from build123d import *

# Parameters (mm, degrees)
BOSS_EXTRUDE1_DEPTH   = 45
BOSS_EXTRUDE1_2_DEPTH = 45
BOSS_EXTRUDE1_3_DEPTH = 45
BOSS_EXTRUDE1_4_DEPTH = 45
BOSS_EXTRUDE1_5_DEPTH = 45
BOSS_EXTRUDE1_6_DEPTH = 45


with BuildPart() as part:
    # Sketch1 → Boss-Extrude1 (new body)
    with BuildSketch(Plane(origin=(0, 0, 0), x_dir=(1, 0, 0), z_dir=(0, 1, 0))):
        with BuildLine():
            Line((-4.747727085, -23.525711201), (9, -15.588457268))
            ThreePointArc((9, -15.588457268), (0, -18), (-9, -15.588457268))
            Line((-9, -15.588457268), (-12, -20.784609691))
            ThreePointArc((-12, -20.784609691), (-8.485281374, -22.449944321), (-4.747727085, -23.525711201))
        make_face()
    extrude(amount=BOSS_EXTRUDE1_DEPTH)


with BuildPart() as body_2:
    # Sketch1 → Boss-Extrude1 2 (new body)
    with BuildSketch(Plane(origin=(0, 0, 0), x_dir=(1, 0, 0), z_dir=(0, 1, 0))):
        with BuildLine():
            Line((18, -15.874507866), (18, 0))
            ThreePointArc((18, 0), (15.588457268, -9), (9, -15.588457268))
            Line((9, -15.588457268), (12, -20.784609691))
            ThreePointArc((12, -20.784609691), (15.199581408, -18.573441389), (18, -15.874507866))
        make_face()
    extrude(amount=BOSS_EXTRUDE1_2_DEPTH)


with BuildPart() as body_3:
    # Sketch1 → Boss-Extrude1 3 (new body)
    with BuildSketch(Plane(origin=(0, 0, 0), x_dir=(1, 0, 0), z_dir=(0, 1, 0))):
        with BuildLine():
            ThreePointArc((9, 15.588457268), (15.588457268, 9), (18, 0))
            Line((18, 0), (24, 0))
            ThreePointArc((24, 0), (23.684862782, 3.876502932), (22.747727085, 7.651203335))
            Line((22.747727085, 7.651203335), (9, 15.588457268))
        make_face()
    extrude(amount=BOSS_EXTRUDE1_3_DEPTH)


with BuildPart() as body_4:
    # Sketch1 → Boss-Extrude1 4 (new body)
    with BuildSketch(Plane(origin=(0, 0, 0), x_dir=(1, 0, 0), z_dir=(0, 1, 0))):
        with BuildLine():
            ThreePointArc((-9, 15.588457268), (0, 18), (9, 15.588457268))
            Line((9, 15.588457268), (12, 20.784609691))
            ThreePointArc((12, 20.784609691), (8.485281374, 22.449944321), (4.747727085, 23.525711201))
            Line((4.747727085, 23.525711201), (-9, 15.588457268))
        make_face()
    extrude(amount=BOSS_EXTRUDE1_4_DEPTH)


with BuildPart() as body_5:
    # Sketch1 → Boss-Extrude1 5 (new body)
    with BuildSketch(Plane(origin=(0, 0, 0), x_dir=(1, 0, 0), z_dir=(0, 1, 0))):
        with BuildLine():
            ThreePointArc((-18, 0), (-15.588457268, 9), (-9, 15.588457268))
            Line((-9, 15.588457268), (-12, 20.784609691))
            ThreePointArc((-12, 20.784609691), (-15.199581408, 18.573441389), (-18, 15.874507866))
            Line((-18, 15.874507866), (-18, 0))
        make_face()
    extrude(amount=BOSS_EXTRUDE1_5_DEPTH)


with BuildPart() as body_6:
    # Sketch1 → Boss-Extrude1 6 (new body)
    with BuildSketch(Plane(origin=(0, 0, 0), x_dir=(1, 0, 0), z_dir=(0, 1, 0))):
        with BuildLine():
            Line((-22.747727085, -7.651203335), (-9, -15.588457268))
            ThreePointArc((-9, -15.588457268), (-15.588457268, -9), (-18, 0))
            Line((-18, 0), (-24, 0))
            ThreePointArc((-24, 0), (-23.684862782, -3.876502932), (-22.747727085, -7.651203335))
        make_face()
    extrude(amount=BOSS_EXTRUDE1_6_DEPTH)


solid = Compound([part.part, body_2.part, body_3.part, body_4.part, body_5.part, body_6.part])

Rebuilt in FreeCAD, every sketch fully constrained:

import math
import FreeCAD as App
import Part
import Sketcher
Q = App.Units.Quantity

doc = App.newDocument("Part")
params = doc.addObject("Spreadsheet::Sheet", "Params")
for row, (alias, value) in enumerate([
    ("sketch1_radius", "18 mm"),
    ("sketch1_radius2", "24 mm"),
    ("pad1_length", "45 mm"),
    ("sketch2_radius", "18 mm"),
    ("sketch2_radius2", "24 mm"),
    ("pad2_length", "45 mm"),
    ("sketch3_radius", "18 mm"),
    ("sketch3_radius2", "24 mm"),
    ("pad3_length", "45 mm"),
    ("sketch4_radius", "18 mm"),
    ("sketch4_radius2", "24 mm"),
    ("pad4_length", "45 mm"),
    ("sketch5_radius", "18 mm"),
    ("sketch5_radius2", "24 mm"),
    ("pad5_length", "45 mm"),
    ("sketch6_radius", "18 mm"),
    ("sketch6_radius2", "24 mm"),
    ("pad6_length", "45 mm"),
], start=1):
    params.set(f"A{row}", alias)
    params.set(f"B{row}", "=" + value)
    params.setAlias(f"B{row}", alias)

body = doc.addObject("PartDesign::Body", "Body")

# Sketch on XZ plane
sketch1 = doc.addObject("Sketcher::SketchObject", "Sketch")
body.addObject(sketch1)
sketch1.AttachmentSupport = (doc.XZ_Plane, [""])
sketch1.MapMode = "FlatFace"
sketch1.addGeometry(Part.LineSegment(App.Vector(-5, 24, 0), App.Vector(9, 16, 0)), False)
sketch1.addGeometry(Part.ArcOfCircle(Part.Circle(App.Vector(0, 0, 0), App.Vector(0, 0, 1), 18), math.radians(60), math.radians(120)), False)
sketch1.addGeometry(Part.LineSegment(App.Vector(-9, 16, 0), App.Vector(-12, 21, 0)), False)
sketch1.addGeometry(Part.ArcOfCircle(Part.Circle(App.Vector(0, 0, 0), App.Vector(0, 0, 1), 24), math.radians(101.41), math.radians(120)), False)
sketch1.addConstraint(Sketcher.Constraint("Tangent", 0, 2, 1, 1))
sketch1.addConstraint(Sketcher.Constraint("Coincident", 1, 2, 2, 1))
sketch1.addConstraint(Sketcher.Constraint("Coincident", 2, 2, 3, 2))
sketch1.addConstraint(Sketcher.Constraint("Coincident", 3, 1, 0, 1))
sketch1.addConstraint(Sketcher.Constraint("Coincident", 1, 3, -1, 1))
sketch1.addConstraint(Sketcher.Constraint("Coincident", 3, 3, -1, 1))
sketch1.addConstraint(Sketcher.Constraint("Horizontal", 0, 2, 1, 2))
sketch1.addConstraint(Sketcher.Constraint("Radius", 1, Q("18 mm")))
sketch1.addConstraint(Sketcher.Constraint("Radius", 3, Q("24 mm")))
sketch1.addConstraint(Sketcher.Constraint("Angle", 0, Q("-30 deg")))
sketch1.addConstraint(Sketcher.Constraint("Angle", 2, Q("120 deg")))
sketch1.setExpression("Constraints[7]", "Params.sketch1_radius")
sketch1.setExpression("Constraints[8]", "Params.sketch1_radius2")
pad1 = doc.addObject("PartDesign::Pad", "Pad")
body.addObject(pad1)
pad1.Profile = sketch1
pad1.setExpression("Length", "Params.pad1_length")
pad1.Reversed = True
body2 = doc.addObject("PartDesign::Body", "Body001")

# Sketch on XZ plane
sketch2 = doc.addObject("Sketcher::SketchObject", "Sketch001")
body2.addObject(sketch2)
sketch2.AttachmentSupport = (doc.getObject("XZ_Plane001"), [""])
sketch2.MapMode = "FlatFace"
sketch2.addGeometry(Part.LineSegment(App.Vector(18, 16, 0), App.Vector(18, 0, 0)), False)
sketch2.addGeometry(Part.ArcOfCircle(Part.Circle(App.Vector(0, 0, 0), App.Vector(0, 0, 1), 18), math.radians(0), math.radians(60)), False)
sketch2.addGeometry(Part.LineSegment(App.Vector(9, 16, 0), App.Vector(12, 21, 0)), False)
sketch2.addGeometry(Part.ArcOfCircle(Part.Circle(App.Vector(0, 0, 0), App.Vector(0, 0, 1), 24), math.radians(41.41), math.radians(60)), False)
sketch2.addConstraint(Sketcher.Constraint("Tangent", 0, 2, 1, 1))
sketch2.addConstraint(Sketcher.Constraint("Coincident", 1, 2, 2, 1))
sketch2.addConstraint(Sketcher.Constraint("Coincident", 2, 2, 3, 2))
sketch2.addConstraint(Sketcher.Constraint("Coincident", 3, 1, 0, 1))
sketch2.addConstraint(Sketcher.Constraint("Vertical", 0))
sketch2.addConstraint(Sketcher.Constraint("Coincident", 1, 3, -1, 1))
sketch2.addConstraint(Sketcher.Constraint("Coincident", 3, 3, -1, 1))
sketch2.addConstraint(Sketcher.Constraint("Radius", 1, Q("18 mm")))
sketch2.addConstraint(Sketcher.Constraint("Radius", 3, Q("24 mm")))
sketch2.addConstraint(Sketcher.Constraint("Angle", 2, Q("60 deg")))
sketch2.addConstraint(Sketcher.Constraint("DistanceX", -1, 1, 1, 2, Q("9 mm")))
sketch2.setExpression("Constraints[7]", "Params.sketch2_radius")
sketch2.setExpression("Constraints[8]", "Params.sketch2_radius2")
pad2 = doc.addObject("PartDesign::Pad", "Pad001")
body2.addObject(pad2)
pad2.Profile = sketch2
pad2.setExpression("Length", "Params.pad2_length")
pad2.Reversed = True
body3 = doc.addObject("PartDesign::Body", "Body002")

# Sketch on XZ plane
sketch3 = doc.addObject("Sketcher::SketchObject", "Sketch002")
body3.addObject(sketch3)
sketch3.AttachmentSupport = (doc.getObject("XZ_Plane002"), [""])
sketch3.MapMode = "FlatFace"
sketch3.addGeometry(Part.ArcOfCircle(Part.Circle(App.Vector(0, 0, 0), App.Vector(0, 0, 1), 18), math.radians(-60), math.radians(0)), False)
sketch3.addGeometry(Part.LineSegment(App.Vector(18, 0, 0), App.Vector(24, 0, 0)), False)
sketch3.addGeometry(Part.ArcOfCircle(Part.Circle(App.Vector(0, 0, 0), App.Vector(0, 0, 1), 24), math.radians(-18.59), math.radians(0)), False)
sketch3.addGeometry(Part.LineSegment(App.Vector(23, -8, 0), App.Vector(9, -16, 0)), False)
sketch3.addConstraint(Sketcher.Constraint("Coincident", 0, 2, 1, 1))
sketch3.addConstraint(Sketcher.Constraint("Coincident", 1, 2, 2, 2))
sketch3.addConstraint(Sketcher.Constraint("Coincident", 2, 1, 3, 1))
sketch3.addConstraint(Sketcher.Constraint("Tangent", 3, 2, 0, 1))
sketch3.addConstraint(Sketcher.Constraint("Horizontal", 1))
sketch3.addConstraint(Sketcher.Constraint("Coincident", 0, 3, -1, 1))
sketch3.addConstraint(Sketcher.Constraint("Coincident", 2, 3, -1, 1))
sketch3.addConstraint(Sketcher.Constraint("PointOnObject", 0, 2, -1))
sketch3.addConstraint(Sketcher.Constraint("Radius", 0, Q("18 mm")))
sketch3.addConstraint(Sketcher.Constraint("Radius", 2, Q("24 mm")))
sketch3.addConstraint(Sketcher.Constraint("Angle", 3, Q("-150 deg")))
sketch3.setExpression("Constraints[8]", "Params.sketch3_radius")
sketch3.setExpression("Constraints[9]", "Params.sketch3_radius2")
pad3 = doc.addObject("PartDesign::Pad", "Pad002")
body3.addObject(pad3)
pad3.Profile = sketch3
pad3.setExpression("Length", "Params.pad3_length")
pad3.Reversed = True
body4 = doc.addObject("PartDesign::Body", "Body003")

# Sketch on XZ plane
sketch4 = doc.addObject("Sketcher::SketchObject", "Sketch003")
body4.addObject(sketch4)
sketch4.AttachmentSupport = (doc.getObject("XZ_Plane003"), [""])
sketch4.MapMode = "FlatFace"
sketch4.addGeometry(Part.ArcOfCircle(Part.Circle(App.Vector(0, 0, 0), App.Vector(0, 0, 1), 18), math.radians(-120), math.radians(-60)), False)
sketch4.addGeometry(Part.LineSegment(App.Vector(9, -16, 0), App.Vector(12, -21, 0)), False)
sketch4.addGeometry(Part.ArcOfCircle(Part.Circle(App.Vector(0, 0, 0), App.Vector(0, 0, 1), 24), math.radians(-78.59), math.radians(-60)), False)
sketch4.addGeometry(Part.LineSegment(App.Vector(5, -24, 0), App.Vector(-9, -16, 0)), False)
sketch4.addConstraint(Sketcher.Constraint("Coincident", 0, 2, 1, 1))
sketch4.addConstraint(Sketcher.Constraint("Coincident", 1, 2, 2, 2))
sketch4.addConstraint(Sketcher.Constraint("Coincident", 2, 1, 3, 1))
sketch4.addConstraint(Sketcher.Constraint("Tangent", 3, 2, 0, 1))
sketch4.addConstraint(Sketcher.Constraint("Coincident", 0, 3, -1, 1))
sketch4.addConstraint(Sketcher.Constraint("Coincident", 2, 3, -1, 1))
sketch4.addConstraint(Sketcher.Constraint("Horizontal", 0, 2, 3, 2))
sketch4.addConstraint(Sketcher.Constraint("Radius", 0, Q("18 mm")))
sketch4.addConstraint(Sketcher.Constraint("Radius", 2, Q("24 mm")))
sketch4.addConstraint(Sketcher.Constraint("Angle", 1, Q("-60 deg")))
sketch4.addConstraint(Sketcher.Constraint("Angle", 3, Q("150 deg")))
sketch4.setExpression("Constraints[7]", "Params.sketch4_radius")
sketch4.setExpression("Constraints[8]", "Params.sketch4_radius2")
pad4 = doc.addObject("PartDesign::Pad", "Pad003")
body4.addObject(pad4)
pad4.Profile = sketch4
pad4.setExpression("Length", "Params.pad4_length")
pad4.Reversed = True
body5 = doc.addObject("PartDesign::Body", "Body004")

# Sketch on XZ plane
sketch5 = doc.addObject("Sketcher::SketchObject", "Sketch004")
body5.addObject(sketch5)
sketch5.AttachmentSupport = (doc.getObject("XZ_Plane004"), [""])
sketch5.MapMode = "FlatFace"
sketch5.addGeometry(Part.ArcOfCircle(Part.Circle(App.Vector(0, 0, 0), App.Vector(0, 0, 1), 18), math.radians(180), math.radians(240)), False)
sketch5.addGeometry(Part.LineSegment(App.Vector(-9, -16, 0), App.Vector(-12, -21, 0)), False)
sketch5.addGeometry(Part.ArcOfCircle(Part.Circle(App.Vector(0, 0, 0), App.Vector(0, 0, 1), 24), math.radians(-138.59), math.radians(-120)), False)
sketch5.addGeometry(Part.LineSegment(App.Vector(-18, -16, 0), App.Vector(-18, 0, 0)), False)
sketch5.addConstraint(Sketcher.Constraint("Coincident", 0, 2, 1, 1))
sketch5.addConstraint(Sketcher.Constraint("Coincident", 1, 2, 2, 2))
sketch5.addConstraint(Sketcher.Constraint("Coincident", 2, 1, 3, 1))
sketch5.addConstraint(Sketcher.Constraint("Tangent", 3, 2, 0, 1))
sketch5.addConstraint(Sketcher.Constraint("Vertical", 3))
sketch5.addConstraint(Sketcher.Constraint("Coincident", 0, 3, -1, 1))
sketch5.addConstraint(Sketcher.Constraint("Coincident", 2, 3, -1, 1))
sketch5.addConstraint(Sketcher.Constraint("Radius", 0, Q("18 mm")))
sketch5.addConstraint(Sketcher.Constraint("Radius", 2, Q("24 mm")))
sketch5.addConstraint(Sketcher.Constraint("Angle", 1, Q("-120 deg")))
sketch5.addConstraint(Sketcher.Constraint("DistanceX", 0, 2, -1, 1, Q("9 mm")))
sketch5.setExpression("Constraints[7]", "Params.sketch5_radius")
sketch5.setExpression("Constraints[8]", "Params.sketch5_radius2")
pad5 = doc.addObject("PartDesign::Pad", "Pad004")
body5.addObject(pad5)
pad5.Profile = sketch5
pad5.setExpression("Length", "Params.pad5_length")
pad5.Reversed = True
body6 = doc.addObject("PartDesign::Body", "Body005")

# Sketch on XZ plane
sketch6 = doc.addObject("Sketcher::SketchObject", "Sketch005")
body6.addObject(sketch6)
sketch6.AttachmentSupport = (doc.getObject("XZ_Plane005"), [""])
sketch6.MapMode = "FlatFace"
sketch6.addGeometry(Part.LineSegment(App.Vector(-23, 8, 0), App.Vector(-9, 16, 0)), False)
sketch6.addGeometry(Part.ArcOfCircle(Part.Circle(App.Vector(0, 0, 0), App.Vector(0, 0, 1), 18), math.radians(120), math.radians(180)), False)
sketch6.addGeometry(Part.LineSegment(App.Vector(-18, 0, 0), App.Vector(-24, 0, 0)), False)
sketch6.addGeometry(Part.ArcOfCircle(Part.Circle(App.Vector(0, 0, 0), App.Vector(0, 0, 1), 24), math.radians(161.41), math.radians(180)), False)
sketch6.addConstraint(Sketcher.Constraint("Tangent", 0, 2, 1, 1))
sketch6.addConstraint(Sketcher.Constraint("Coincident", 1, 2, 2, 1))
sketch6.addConstraint(Sketcher.Constraint("Coincident", 2, 2, 3, 2))
sketch6.addConstraint(Sketcher.Constraint("Coincident", 3, 1, 0, 1))
sketch6.addConstraint(Sketcher.Constraint("Horizontal", 2))
sketch6.addConstraint(Sketcher.Constraint("Coincident", 1, 3, -1, 1))
sketch6.addConstraint(Sketcher.Constraint("Coincident", 3, 3, -1, 1))
sketch6.addConstraint(Sketcher.Constraint("PointOnObject", 1, 2, -1))
sketch6.addConstraint(Sketcher.Constraint("Radius", 1, Q("18 mm")))
sketch6.addConstraint(Sketcher.Constraint("Radius", 3, Q("24 mm")))
sketch6.addConstraint(Sketcher.Constraint("Angle", 0, Q("30 deg")))
sketch6.setExpression("Constraints[8]", "Params.sketch6_radius")
sketch6.setExpression("Constraints[9]", "Params.sketch6_radius2")
pad6 = doc.addObject("PartDesign::Pad", "Pad005")
body6.addObject(pad6)
pad6.Profile = sketch6
pad6.setExpression("Length", "Params.pad6_length")
pad6.Reversed = True

doc.recompute()
